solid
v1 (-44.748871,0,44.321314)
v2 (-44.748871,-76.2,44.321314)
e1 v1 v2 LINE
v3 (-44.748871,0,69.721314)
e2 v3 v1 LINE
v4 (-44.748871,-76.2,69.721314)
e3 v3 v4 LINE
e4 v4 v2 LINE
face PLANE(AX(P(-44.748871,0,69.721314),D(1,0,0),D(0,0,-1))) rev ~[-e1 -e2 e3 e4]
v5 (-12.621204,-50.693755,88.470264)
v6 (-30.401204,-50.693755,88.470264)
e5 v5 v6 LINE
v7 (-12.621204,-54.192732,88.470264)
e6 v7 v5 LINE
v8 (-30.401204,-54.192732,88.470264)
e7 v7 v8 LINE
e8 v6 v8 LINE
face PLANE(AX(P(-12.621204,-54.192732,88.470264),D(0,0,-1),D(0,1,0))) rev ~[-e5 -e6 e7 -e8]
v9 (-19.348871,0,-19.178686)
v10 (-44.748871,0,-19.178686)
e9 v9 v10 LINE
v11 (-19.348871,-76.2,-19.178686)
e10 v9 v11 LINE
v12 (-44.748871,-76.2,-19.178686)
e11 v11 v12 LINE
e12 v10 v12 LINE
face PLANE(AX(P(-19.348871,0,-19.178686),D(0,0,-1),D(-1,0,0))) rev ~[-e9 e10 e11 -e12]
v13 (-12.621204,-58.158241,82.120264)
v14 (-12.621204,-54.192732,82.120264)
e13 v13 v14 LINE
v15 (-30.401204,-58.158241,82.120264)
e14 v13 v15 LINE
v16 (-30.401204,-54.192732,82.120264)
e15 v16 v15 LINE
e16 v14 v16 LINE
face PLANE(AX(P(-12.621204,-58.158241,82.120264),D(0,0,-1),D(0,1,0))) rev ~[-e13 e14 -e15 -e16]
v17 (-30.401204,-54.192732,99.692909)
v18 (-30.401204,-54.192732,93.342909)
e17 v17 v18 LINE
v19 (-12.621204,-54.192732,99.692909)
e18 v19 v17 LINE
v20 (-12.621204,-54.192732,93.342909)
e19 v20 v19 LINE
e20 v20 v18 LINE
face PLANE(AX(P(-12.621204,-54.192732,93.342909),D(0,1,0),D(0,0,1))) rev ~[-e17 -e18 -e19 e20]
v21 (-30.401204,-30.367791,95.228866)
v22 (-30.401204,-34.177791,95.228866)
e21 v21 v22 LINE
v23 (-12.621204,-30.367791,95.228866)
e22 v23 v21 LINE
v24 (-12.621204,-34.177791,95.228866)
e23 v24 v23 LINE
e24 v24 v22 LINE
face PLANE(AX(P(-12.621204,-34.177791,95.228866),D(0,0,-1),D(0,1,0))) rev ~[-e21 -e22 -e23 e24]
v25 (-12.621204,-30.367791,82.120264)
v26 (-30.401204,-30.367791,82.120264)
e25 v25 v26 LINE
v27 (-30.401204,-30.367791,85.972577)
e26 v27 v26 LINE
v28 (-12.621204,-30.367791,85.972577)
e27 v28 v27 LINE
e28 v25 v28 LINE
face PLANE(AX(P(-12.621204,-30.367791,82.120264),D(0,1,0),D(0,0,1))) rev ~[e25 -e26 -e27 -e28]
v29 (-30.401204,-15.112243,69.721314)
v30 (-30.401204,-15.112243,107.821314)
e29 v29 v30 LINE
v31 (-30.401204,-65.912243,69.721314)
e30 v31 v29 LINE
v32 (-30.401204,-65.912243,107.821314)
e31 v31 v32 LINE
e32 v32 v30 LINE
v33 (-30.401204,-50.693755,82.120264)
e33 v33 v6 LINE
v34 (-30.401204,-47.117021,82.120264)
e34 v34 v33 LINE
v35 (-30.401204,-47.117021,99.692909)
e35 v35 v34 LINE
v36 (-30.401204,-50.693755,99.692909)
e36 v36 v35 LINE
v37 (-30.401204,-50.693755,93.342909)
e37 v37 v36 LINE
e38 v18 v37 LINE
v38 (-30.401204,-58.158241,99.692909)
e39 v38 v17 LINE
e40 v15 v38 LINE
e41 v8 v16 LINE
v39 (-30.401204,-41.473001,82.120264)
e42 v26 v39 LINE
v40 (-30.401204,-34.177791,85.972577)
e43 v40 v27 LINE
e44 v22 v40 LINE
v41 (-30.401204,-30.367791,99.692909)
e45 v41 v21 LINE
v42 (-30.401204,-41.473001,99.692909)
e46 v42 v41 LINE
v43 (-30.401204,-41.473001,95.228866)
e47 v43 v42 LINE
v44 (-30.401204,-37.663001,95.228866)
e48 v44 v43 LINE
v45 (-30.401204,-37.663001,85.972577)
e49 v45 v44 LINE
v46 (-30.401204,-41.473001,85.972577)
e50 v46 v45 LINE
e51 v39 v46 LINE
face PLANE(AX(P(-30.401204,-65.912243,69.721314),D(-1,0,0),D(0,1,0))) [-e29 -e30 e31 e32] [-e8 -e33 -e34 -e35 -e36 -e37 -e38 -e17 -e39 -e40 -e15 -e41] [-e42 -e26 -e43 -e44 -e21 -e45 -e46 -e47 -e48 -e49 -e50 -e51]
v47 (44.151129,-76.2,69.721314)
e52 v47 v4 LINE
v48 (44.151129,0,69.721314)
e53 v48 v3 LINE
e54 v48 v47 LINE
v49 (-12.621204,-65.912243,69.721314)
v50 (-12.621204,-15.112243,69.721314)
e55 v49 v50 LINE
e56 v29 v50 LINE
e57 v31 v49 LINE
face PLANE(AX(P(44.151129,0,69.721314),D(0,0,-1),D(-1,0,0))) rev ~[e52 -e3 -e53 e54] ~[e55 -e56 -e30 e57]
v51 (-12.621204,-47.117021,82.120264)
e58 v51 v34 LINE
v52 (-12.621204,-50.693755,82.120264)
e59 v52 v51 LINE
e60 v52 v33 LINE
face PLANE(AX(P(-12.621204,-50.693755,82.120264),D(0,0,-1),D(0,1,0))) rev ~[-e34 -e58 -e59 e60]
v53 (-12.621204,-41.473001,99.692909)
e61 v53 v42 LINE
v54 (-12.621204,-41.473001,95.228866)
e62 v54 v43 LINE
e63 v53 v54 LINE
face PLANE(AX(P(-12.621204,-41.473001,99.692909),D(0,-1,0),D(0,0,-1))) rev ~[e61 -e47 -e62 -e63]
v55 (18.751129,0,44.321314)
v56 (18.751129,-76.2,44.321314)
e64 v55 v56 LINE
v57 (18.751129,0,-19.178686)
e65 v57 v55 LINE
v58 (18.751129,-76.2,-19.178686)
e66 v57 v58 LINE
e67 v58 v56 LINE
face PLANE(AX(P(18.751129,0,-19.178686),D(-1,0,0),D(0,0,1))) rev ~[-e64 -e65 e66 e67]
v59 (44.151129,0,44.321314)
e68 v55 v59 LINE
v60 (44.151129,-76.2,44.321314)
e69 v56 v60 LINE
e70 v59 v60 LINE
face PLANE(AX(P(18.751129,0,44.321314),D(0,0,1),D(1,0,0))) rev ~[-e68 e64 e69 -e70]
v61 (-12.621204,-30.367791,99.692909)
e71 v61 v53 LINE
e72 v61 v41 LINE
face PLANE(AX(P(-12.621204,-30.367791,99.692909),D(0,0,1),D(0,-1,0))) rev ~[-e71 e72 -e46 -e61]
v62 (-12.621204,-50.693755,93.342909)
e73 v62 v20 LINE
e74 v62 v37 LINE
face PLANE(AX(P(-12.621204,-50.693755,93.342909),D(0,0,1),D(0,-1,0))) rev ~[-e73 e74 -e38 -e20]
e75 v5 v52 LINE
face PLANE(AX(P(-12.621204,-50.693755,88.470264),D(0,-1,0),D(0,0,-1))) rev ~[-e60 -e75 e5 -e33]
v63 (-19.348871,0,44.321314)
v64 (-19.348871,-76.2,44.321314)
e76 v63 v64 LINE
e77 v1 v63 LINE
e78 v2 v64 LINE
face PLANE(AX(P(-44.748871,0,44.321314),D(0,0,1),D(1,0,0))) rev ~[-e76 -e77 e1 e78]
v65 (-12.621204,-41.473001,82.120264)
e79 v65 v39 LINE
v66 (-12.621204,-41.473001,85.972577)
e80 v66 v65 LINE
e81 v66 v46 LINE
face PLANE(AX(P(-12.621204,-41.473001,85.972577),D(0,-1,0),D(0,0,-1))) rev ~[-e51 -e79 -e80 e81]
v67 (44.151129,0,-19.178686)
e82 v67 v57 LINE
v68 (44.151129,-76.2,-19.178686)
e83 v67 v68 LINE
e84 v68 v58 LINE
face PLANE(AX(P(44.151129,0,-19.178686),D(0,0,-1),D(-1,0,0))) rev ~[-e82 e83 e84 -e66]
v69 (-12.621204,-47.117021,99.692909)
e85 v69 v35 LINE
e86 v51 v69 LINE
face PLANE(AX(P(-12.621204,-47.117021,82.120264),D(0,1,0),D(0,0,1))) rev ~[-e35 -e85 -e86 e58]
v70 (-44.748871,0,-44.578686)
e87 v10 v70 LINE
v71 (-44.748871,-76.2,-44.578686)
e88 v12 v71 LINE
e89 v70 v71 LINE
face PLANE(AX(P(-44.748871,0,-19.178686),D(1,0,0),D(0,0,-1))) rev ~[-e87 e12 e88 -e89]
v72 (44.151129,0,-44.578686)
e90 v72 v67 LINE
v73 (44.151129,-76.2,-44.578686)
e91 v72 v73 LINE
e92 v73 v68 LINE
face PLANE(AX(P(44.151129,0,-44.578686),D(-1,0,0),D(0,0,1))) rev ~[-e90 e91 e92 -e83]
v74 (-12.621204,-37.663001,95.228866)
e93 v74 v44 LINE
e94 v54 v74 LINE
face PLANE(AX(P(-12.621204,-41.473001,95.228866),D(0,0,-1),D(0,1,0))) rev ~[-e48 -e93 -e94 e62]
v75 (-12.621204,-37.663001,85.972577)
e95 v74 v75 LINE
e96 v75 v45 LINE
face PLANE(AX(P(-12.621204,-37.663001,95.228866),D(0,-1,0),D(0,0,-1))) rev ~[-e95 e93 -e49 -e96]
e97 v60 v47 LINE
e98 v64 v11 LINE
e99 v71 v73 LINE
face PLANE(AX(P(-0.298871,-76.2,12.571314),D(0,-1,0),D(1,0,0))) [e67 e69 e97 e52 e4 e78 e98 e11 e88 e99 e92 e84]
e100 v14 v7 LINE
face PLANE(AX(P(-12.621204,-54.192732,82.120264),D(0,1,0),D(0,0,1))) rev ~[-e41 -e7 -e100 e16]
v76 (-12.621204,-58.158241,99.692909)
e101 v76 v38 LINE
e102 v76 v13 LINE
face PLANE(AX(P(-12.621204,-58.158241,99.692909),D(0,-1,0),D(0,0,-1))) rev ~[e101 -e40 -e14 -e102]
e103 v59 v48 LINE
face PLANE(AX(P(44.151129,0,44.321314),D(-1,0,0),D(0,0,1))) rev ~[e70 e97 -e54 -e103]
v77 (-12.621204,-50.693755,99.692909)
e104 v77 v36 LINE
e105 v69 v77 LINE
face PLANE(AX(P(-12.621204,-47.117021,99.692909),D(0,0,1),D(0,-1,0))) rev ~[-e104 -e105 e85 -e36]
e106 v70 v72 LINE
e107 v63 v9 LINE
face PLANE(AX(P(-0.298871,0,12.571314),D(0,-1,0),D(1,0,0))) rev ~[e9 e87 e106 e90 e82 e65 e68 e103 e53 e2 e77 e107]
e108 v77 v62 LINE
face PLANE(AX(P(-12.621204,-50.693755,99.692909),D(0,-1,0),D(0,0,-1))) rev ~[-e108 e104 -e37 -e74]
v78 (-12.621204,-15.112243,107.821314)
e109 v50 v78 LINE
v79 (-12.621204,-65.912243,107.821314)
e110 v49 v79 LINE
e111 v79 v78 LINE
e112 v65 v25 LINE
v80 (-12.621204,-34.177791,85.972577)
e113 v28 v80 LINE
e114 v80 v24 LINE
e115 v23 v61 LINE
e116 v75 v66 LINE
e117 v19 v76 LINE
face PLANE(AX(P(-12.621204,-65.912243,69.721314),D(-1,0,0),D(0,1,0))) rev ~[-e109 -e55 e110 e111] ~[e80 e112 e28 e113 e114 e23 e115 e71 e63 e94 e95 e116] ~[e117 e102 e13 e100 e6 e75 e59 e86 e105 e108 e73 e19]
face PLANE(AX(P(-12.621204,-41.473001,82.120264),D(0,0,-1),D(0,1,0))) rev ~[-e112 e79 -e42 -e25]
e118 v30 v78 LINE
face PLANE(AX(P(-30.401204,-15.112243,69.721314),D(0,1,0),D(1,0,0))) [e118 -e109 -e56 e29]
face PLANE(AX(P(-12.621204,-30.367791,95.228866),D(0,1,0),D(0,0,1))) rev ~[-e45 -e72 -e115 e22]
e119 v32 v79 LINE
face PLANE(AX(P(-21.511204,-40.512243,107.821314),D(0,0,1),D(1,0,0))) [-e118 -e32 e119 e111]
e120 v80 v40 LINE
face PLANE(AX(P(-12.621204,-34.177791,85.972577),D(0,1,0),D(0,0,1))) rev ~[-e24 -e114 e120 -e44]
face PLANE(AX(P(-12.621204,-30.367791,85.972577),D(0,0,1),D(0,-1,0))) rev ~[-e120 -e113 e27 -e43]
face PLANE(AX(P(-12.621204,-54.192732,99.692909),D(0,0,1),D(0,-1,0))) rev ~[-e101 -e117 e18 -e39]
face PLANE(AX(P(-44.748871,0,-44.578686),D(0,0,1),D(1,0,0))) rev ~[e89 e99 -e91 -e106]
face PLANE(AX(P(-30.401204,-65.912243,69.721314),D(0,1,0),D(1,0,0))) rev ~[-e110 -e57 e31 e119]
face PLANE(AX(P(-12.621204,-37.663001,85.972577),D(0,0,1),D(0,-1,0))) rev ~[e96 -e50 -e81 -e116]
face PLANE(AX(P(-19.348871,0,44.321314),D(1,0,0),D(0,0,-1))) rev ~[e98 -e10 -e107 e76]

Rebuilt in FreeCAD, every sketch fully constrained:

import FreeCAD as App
import Part
import Sketcher

V = App.Vector
Q = App.Units.Quantity

doc = App.newDocument("Part")
body = doc.addObject("PartDesign::Body", "Body")

# Sketch on XZ plane
sketch1 = body.newObject("Sketcher::SketchObject", "Sketch")
sketch1.AttachmentSupport = (doc.getObject("XZ_Plane"), [""])
sketch1.MapMode = "FlatFace"
sketch1.addGeometry([
    Part.LineSegment(V(-45, -19, 0), V(-45, -45, 0)),  # 0
    Part.LineSegment(V(-45, -45, 0), V(44, -45, 0)),  # 1
    Part.LineSegment(V(44, -45, 0), V(44, -19, 0)),  # 2
    Part.LineSegment(V(44, -19, 0), V(19, -19, 0)),  # 3
    Part.LineSegment(V(19, -19, 0), V(19, 44, 0)),  # 4
    Part.LineSegment(V(19, 44, 0), V(44, 44, 0)),  # 5
    Part.LineSegment(V(44, 44, 0), V(44, 70, 0)),  # 6
    Part.LineSegment(V(44, 70, 0), V(-45, 70, 0)),  # 7
    Part.LineSegment(V(-45, 70, 0), V(-45, 44, 0)),  # 8
    Part.LineSegment(V(-45, 44, 0), V(-19, 44, 0)),  # 9
    Part.LineSegment(V(-19, 44, 0), V(-19, -19, 0)),  # 10
    Part.LineSegment(V(-19, -19, 0), V(-45, -19, 0)),  # 11
], False)
sketch1.addConstraint([
    Sketcher.Constraint("Coincident", 0, 2, 1, 1),
    Sketcher.Constraint("Coincident", 1, 2, 2, 1),
    Sketcher.Constraint("Coincident", 2, 2, 3, 1),
    Sketcher.Constraint("Coincident", 3, 2, 4, 1),
    Sketcher.Constraint("Coincident", 4, 2, 5, 1),
    Sketcher.Constraint("Coincident", 5, 2, 6, 1),
    Sketcher.Constraint("Coincident", 6, 2, 7, 1),
    Sketcher.Constraint("Coincident", 7, 2, 8, 1),
    Sketcher.Constraint("Coincident", 8, 2, 9, 1),
    Sketcher.Constraint("Coincident", 9, 2, 10, 1),
    Sketcher.Constraint("Coincident", 10, 2, 11, 1),
    Sketcher.Constraint("Coincident", 11, 2, 0, 1),
    Sketcher.Constraint("Vertical", 0),
    Sketcher.Constraint("Horizontal", 1),
    Sketcher.Constraint("Vertical", 2),
    Sketcher.Constraint("Horizontal", 3),
    Sketcher.Constraint("Vertical", 4),
    Sketcher.Constraint("Horizontal", 5),
    Sketcher.Constraint("Vertical", 6),
    Sketcher.Constraint("Horizontal", 7),
    Sketcher.Constraint("Vertical", 8),
    Sketcher.Constraint("Horizontal", 9),
    Sketcher.Constraint("Vertical", 10),
    Sketcher.Constraint("Horizontal", 11),
    Sketcher.Constraint("Horizontal", 5, 2, 8, 2),
    Sketcher.Constraint("Horizontal", 3, 2, 10, 2),
    Sketcher.Constraint("Vertical", 2, 2, 5, 2),
    Sketcher.Constraint("Vertical", 0, 2, 7, 2),
    Sketcher.Constraint("Equal", 5, 9),
    Sketcher.Constraint("Equal", 11, 0),
    Sketcher.Constraint("Equal", 2, 6),
    Sketcher.Constraint("DistanceX", 3, 2, 3, 1, Q("1 in")),
    Sketcher.Constraint("DistanceX", 1, 1, 1, 2, Q("3.5 in")),
    Sketcher.Constraint("DistanceY", 4, 1, 4, 2, Q("2.5 in")),
    Sketcher.Constraint("DistanceX", 0, 2, -1, 1, Q("44.748871 mm")),
    Sketcher.Constraint("DistanceY", 0, 2, -1, 1, Q("44.578686 mm")),
])
pad1 = body.newObject("PartDesign::Pad", "Pad")
pad1.Profile = sketch1
pad1.Length = Q("3 in")

# Sketch on XY plane
sketch2 = body.newObject("Sketcher::SketchObject", "Sketch001")
sketch2.AttachmentSupport = (doc.getObject("XY_Plane"), [""])
sketch2.MapMode = "FlatFace"
sketch2.AttachmentOffset = App.Placement(V(0, 0, 69.721314), App.Rotation())
sketch2.addGeometry([
    Part.LineSegment(V(-30, -15, 0), V(-30, -66, 0)),
    Part.LineSegment(V(-30, -66, 0), V(-13, -66, 0)),
    Part.LineSegment(V(-13, -66, 0), V(-13, -15, 0)),
    Part.LineSegment(V(-13, -15, 0), V(-30, -15, 0)),
], False)
sketch2.addConstraint([
    Sketcher.Constraint("Coincident", 0, 2, 1, 1),
    Sketcher.Constraint("Coincident", 1, 2, 2, 1),
    Sketcher.Constraint("Coincident", 2, 2, 3, 1),
    Sketcher.Constraint("Coincident", 3, 2, 0, 1),
    Sketcher.Constraint("Vertical", 0),
    Sketcher.Constraint("Horizontal", 1),
    Sketcher.Constraint("Vertical", 2),
    Sketcher.Constraint("Horizontal", 3),
    Sketcher.Constraint("DistanceY", 0, 2, 0, 1, Q("2 in")),
    Sketcher.Constraint("DistanceX", 1, 1, 1, 2, Q("0.7 in")),
    Sketcher.Constraint("DistanceX", 0, 2, -1, 1, Q("30.401204 mm")),
    Sketcher.Constraint("DistanceY", 0, 2, -1, 1, Q("65.912243 mm")),
])
pad2 = body.newObject("PartDesign::Pad", "Pad001")
pad2.Profile = sketch2
pad2.Length = Q("1.5 in")

# Sketch on YZ plane
sketch3 = body.newObject("Sketcher::SketchObject", "Sketch002")
sketch3.AttachmentSupport = (doc.getObject("YZ_Plane"), [""])
sketch3.MapMode = "FlatFace"
sketch3.AttachmentOffset = App.Placement(V(0, 0, -12.621204), App.Rotation())
sketch3.addGeometry([
    Part.LineSegment(V(-54.2, 99.7, 0), V(-58.2, 99.7, 0)),  # 0
    Part.LineSegment(V(-58.2, 99.7, 0), V(-58.2, 82.1, 0)),  # 1
    Part.LineSegment(V(-58.2, 82.1, 0), V(-54.2, 82.1, 0)),  # 2
    Part.LineSegment(V(-54.2, 82.1, 0), V(-54.2, 88.5, 0)),  # 3
    Part.LineSegment(V(-54.2, 88.5, 0), V(-50.7, 88.5, 0)),  # 4
    Part.LineSegment(V(-50.7, 88.5, 0), V(-50.7, 82.1, 0)),  # 5
    Part.LineSegment(V(-50.7, 82.1, 0), V(-47.1, 82.1, 0)),  # 6
    Part.LineSegment(V(-47.1, 82.1, 0), V(-47.1, 99.7, 0)),  # 7
    Part.LineSegment(V(-47.1, 99.7, 0), V(-50.7, 99.7, 0)),  # 8
    Part.LineSegment(V(-50.7, 99.7, 0), V(-50.7, 93.3, 0)),  # 9
    Part.LineSegment(V(-50.7, 93.3, 0), V(-54.2, 93.3, 0)),  # 10
    Part.LineSegment(V(-54.2, 93.3, 0), V(-54.2, 99.7, 0)),  # 11
], False)
sketch3.addConstraint([
    Sketcher.Constraint("Coincident", 0, 2, 1, 1),
    Sketcher.Constraint("Coincident", 1, 2, 2, 1),
    Sketcher.Constraint("Coincident", 2, 2, 3, 1),
    Sketcher.Constraint("Coincident", 3, 2, 4, 1),
    Sketcher.Constraint("Coincident", 4, 2, 5, 1),
    Sketcher.Constraint("Coincident", 5, 2, 6, 1),
    Sketcher.Constraint("Coincident", 6, 2, 7, 1),
    Sketcher.Constraint("Coincident", 7, 2, 8, 1),
    Sketcher.Constraint("Coincident", 8, 2, 9, 1),
    Sketcher.Constraint("Coincident", 9, 2, 10, 1),
    Sketcher.Constraint("Coincident", 10, 2, 11, 1),
    Sketcher.Constraint("Coincident", 11, 2, 0, 1),
    Sketcher.Constraint("Horizontal", 0),
    Sketcher.Constraint("Vertical", 1),
    Sketcher.Constraint("Horizontal", 2),
    Sketcher.Constraint("Vertical", 3),
    Sketcher.Constraint("Horizontal", 4),
    Sketcher.Constraint("Vertical", 5),
    Sketcher.Constraint("Horizontal", 6),
    Sketcher.Constraint("Vertical", 7),
    Sketcher.Constraint("Horizontal", 8),
    Sketcher.Constraint("Vertical", 9),
    Sketcher.Constraint("Horizontal", 10),
    Sketcher.Constraint("Vertical", 11),
    Sketcher.Constraint("Horizontal", 2, 2, 5, 2),
    Sketcher.Constraint("Horizontal", 0, 2, 7, 2),
    Sketcher.Constraint("Vertical", 5, 2, 8, 2),
    Sketcher.Constraint("Vertical", 3, 2, 10, 2),
    Sketcher.Constraint("Equal", 5, 9),
    Sketcher.Constraint("DistanceY", 3, 1, 3, 2, Q("0.25 in")),
    Sketcher.Constraint("DistanceX", 0, 2, 0, 1, Q("3.965509 mm")),
    Sketcher.Constraint("DistanceX", 4, 1, 4, 2, Q("3.498977 mm")),
    Sketcher.Constraint("DistanceX", 6, 1, 6, 2, Q("3.576734 mm")),
    Sketcher.Constraint("DistanceY", 1, 2, 1, 1, Q("17.572645 mm")),
    Sketcher.Constraint("DistanceX", 0, 2, -1, 1, Q("58.158241 mm")),
    Sketcher.Constraint("DistanceY", -1, 1, 0, 2, Q("99.692909 mm")),
])
pocket1 = body.newObject("PartDesign::Pocket", "Pocket")
pocket1.Profile = sketch3
pocket1.Length = Q("2.5 in")

# Sketch on YZ plane
sketch4 = body.newObject("Sketcher::SketchObject", "Sketch003")
sketch4.AttachmentSupport = (doc.getObject("YZ_Plane"), [""])
sketch4.MapMode = "FlatFace"
sketch4.AttachmentOffset = App.Placement(V(0, 0, -12.621204), App.Rotation())
sketch4.addGeometry([
    Part.LineSegment(V(-34.2, 95.2, 0), V(-30.4, 95.2, 0)),  # 0
    Part.LineSegment(V(-30.4, 95.2, 0), V(-30.4, 99.7, 0)),  # 1
    Part.LineSegment(V(-30.4, 99.7, 0), V(-41.5, 99.7, 0)),  # 2
    Part.LineSegment(V(-41.5, 99.7, 0), V(-41.5, 95.2, 0)),  # 3
    Part.LineSegment(V(-41.5, 95.2, 0), V(-37.7, 95.2, 0)),  # 4
    Part.LineSegment(V(-37.7, 95.2, 0), V(-37.7, 86, 0)),  # 5
    Part.LineSegment(V(-37.7, 86, 0), V(-41.5, 86, 0)),  # 6
    Part.LineSegment(V(-41.5, 86, 0), V(-41.5, 82.1, 0)),  # 7
    Part.LineSegment(V(-41.5, 82.1, 0), V(-30.4, 82.1, 0)),  # 8
    Part.LineSegment(V(-30.4, 82.1, 0), V(-30.4, 86, 0)),  # 9
    Part.LineSegment(V(-30.4, 86, 0), V(-34.2, 86, 0)),  # 10
    Part.LineSegment(V(-34.2, 86, 0), V(-34.2, 95.2, 0)),  # 11
], False)
sketch4.addConstraint([
    Sketcher.Constraint("Coincident", 0, 2, 1, 1),
    Sketcher.Constraint("Coincident", 1, 2, 2, 1),
    Sketcher.Constraint("Coincident", 2, 2, 3, 1),
    Sketcher.Constraint("Coincident", 3, 2, 4, 1),
    Sketcher.Constraint("Coincident", 4, 2, 5, 1),
    Sketcher.Constraint("Coincident", 5, 2, 6, 1),
    Sketcher.Constraint("Coincident", 6, 2, 7, 1),
    Sketcher.Constraint("Coincident", 7, 2, 8, 1),
    Sketcher.Constraint("Coincident", 8, 2, 9, 1),
    Sketcher.Constraint("Coincident", 9, 2, 10, 1),
    Sketcher.Constraint("Coincident", 10, 2, 11, 1),
    Sketcher.Constraint("Coincident", 11, 2, 0, 1),
    Sketcher.Constraint("Horizontal", 0),
    Sketcher.Constraint("Vertical", 1),
    Sketcher.Constraint("Horizontal", 2),
    Sketcher.Constraint("Vertical", 3),
    Sketcher.Constraint("Horizontal", 4),
    Sketcher.Constraint("Vertical", 5),
    Sketcher.Constraint("Horizontal", 6),
    Sketcher.Constraint("Vertical", 7),
    Sketcher.Constraint("Horizontal", 8),
    Sketcher.Constraint("Vertical", 9),
    Sketcher.Constraint("Horizontal", 10),
    Sketcher.Constraint("Vertical", 11),
    Sketcher.Constraint("Horizontal", 0, 2, 3, 2),
    Sketcher.Constraint("Horizontal", 6, 2, 9, 2),
    Sketcher.Constraint("Vertical", 3, 2, 6, 2),
    Sketcher.Constraint("Vertical", 1, 2, 8, 2),
    Sketcher.Constraint("Equal", 0, 4),
    Sketcher.Constraint("DistanceX", 0, 1, 0, 2, Q("0.15 in")),
    Sketcher.Constraint("DistanceX", 2, 2, 2, 1, Q("11.10521 mm")),
    Sketcher.Constraint("DistanceY", 5, 2, 5, 1, Q("9.256289 mm")),
    Sketcher.Constraint("DistanceX", 2, 2, -1, 1, Q("41.473001 mm")),
    Sketcher.Constraint("DistanceY", 7, 2, 3, 2, Q("13.108602 mm")),
    Sketcher.Constraint("DistanceY", 1, 1, 1, 2, Q("4.464043 mm")),
    Sketcher.Constraint("DistanceY", -1, 1, 1, 2, Q("99.692909 mm")),
])
pocket2 = body.newObject("PartDesign::Pocket", "Pocket001")
pocket2.Profile = sketch4
pocket2.Length = Q("2.5 in")

doc.recompute()
